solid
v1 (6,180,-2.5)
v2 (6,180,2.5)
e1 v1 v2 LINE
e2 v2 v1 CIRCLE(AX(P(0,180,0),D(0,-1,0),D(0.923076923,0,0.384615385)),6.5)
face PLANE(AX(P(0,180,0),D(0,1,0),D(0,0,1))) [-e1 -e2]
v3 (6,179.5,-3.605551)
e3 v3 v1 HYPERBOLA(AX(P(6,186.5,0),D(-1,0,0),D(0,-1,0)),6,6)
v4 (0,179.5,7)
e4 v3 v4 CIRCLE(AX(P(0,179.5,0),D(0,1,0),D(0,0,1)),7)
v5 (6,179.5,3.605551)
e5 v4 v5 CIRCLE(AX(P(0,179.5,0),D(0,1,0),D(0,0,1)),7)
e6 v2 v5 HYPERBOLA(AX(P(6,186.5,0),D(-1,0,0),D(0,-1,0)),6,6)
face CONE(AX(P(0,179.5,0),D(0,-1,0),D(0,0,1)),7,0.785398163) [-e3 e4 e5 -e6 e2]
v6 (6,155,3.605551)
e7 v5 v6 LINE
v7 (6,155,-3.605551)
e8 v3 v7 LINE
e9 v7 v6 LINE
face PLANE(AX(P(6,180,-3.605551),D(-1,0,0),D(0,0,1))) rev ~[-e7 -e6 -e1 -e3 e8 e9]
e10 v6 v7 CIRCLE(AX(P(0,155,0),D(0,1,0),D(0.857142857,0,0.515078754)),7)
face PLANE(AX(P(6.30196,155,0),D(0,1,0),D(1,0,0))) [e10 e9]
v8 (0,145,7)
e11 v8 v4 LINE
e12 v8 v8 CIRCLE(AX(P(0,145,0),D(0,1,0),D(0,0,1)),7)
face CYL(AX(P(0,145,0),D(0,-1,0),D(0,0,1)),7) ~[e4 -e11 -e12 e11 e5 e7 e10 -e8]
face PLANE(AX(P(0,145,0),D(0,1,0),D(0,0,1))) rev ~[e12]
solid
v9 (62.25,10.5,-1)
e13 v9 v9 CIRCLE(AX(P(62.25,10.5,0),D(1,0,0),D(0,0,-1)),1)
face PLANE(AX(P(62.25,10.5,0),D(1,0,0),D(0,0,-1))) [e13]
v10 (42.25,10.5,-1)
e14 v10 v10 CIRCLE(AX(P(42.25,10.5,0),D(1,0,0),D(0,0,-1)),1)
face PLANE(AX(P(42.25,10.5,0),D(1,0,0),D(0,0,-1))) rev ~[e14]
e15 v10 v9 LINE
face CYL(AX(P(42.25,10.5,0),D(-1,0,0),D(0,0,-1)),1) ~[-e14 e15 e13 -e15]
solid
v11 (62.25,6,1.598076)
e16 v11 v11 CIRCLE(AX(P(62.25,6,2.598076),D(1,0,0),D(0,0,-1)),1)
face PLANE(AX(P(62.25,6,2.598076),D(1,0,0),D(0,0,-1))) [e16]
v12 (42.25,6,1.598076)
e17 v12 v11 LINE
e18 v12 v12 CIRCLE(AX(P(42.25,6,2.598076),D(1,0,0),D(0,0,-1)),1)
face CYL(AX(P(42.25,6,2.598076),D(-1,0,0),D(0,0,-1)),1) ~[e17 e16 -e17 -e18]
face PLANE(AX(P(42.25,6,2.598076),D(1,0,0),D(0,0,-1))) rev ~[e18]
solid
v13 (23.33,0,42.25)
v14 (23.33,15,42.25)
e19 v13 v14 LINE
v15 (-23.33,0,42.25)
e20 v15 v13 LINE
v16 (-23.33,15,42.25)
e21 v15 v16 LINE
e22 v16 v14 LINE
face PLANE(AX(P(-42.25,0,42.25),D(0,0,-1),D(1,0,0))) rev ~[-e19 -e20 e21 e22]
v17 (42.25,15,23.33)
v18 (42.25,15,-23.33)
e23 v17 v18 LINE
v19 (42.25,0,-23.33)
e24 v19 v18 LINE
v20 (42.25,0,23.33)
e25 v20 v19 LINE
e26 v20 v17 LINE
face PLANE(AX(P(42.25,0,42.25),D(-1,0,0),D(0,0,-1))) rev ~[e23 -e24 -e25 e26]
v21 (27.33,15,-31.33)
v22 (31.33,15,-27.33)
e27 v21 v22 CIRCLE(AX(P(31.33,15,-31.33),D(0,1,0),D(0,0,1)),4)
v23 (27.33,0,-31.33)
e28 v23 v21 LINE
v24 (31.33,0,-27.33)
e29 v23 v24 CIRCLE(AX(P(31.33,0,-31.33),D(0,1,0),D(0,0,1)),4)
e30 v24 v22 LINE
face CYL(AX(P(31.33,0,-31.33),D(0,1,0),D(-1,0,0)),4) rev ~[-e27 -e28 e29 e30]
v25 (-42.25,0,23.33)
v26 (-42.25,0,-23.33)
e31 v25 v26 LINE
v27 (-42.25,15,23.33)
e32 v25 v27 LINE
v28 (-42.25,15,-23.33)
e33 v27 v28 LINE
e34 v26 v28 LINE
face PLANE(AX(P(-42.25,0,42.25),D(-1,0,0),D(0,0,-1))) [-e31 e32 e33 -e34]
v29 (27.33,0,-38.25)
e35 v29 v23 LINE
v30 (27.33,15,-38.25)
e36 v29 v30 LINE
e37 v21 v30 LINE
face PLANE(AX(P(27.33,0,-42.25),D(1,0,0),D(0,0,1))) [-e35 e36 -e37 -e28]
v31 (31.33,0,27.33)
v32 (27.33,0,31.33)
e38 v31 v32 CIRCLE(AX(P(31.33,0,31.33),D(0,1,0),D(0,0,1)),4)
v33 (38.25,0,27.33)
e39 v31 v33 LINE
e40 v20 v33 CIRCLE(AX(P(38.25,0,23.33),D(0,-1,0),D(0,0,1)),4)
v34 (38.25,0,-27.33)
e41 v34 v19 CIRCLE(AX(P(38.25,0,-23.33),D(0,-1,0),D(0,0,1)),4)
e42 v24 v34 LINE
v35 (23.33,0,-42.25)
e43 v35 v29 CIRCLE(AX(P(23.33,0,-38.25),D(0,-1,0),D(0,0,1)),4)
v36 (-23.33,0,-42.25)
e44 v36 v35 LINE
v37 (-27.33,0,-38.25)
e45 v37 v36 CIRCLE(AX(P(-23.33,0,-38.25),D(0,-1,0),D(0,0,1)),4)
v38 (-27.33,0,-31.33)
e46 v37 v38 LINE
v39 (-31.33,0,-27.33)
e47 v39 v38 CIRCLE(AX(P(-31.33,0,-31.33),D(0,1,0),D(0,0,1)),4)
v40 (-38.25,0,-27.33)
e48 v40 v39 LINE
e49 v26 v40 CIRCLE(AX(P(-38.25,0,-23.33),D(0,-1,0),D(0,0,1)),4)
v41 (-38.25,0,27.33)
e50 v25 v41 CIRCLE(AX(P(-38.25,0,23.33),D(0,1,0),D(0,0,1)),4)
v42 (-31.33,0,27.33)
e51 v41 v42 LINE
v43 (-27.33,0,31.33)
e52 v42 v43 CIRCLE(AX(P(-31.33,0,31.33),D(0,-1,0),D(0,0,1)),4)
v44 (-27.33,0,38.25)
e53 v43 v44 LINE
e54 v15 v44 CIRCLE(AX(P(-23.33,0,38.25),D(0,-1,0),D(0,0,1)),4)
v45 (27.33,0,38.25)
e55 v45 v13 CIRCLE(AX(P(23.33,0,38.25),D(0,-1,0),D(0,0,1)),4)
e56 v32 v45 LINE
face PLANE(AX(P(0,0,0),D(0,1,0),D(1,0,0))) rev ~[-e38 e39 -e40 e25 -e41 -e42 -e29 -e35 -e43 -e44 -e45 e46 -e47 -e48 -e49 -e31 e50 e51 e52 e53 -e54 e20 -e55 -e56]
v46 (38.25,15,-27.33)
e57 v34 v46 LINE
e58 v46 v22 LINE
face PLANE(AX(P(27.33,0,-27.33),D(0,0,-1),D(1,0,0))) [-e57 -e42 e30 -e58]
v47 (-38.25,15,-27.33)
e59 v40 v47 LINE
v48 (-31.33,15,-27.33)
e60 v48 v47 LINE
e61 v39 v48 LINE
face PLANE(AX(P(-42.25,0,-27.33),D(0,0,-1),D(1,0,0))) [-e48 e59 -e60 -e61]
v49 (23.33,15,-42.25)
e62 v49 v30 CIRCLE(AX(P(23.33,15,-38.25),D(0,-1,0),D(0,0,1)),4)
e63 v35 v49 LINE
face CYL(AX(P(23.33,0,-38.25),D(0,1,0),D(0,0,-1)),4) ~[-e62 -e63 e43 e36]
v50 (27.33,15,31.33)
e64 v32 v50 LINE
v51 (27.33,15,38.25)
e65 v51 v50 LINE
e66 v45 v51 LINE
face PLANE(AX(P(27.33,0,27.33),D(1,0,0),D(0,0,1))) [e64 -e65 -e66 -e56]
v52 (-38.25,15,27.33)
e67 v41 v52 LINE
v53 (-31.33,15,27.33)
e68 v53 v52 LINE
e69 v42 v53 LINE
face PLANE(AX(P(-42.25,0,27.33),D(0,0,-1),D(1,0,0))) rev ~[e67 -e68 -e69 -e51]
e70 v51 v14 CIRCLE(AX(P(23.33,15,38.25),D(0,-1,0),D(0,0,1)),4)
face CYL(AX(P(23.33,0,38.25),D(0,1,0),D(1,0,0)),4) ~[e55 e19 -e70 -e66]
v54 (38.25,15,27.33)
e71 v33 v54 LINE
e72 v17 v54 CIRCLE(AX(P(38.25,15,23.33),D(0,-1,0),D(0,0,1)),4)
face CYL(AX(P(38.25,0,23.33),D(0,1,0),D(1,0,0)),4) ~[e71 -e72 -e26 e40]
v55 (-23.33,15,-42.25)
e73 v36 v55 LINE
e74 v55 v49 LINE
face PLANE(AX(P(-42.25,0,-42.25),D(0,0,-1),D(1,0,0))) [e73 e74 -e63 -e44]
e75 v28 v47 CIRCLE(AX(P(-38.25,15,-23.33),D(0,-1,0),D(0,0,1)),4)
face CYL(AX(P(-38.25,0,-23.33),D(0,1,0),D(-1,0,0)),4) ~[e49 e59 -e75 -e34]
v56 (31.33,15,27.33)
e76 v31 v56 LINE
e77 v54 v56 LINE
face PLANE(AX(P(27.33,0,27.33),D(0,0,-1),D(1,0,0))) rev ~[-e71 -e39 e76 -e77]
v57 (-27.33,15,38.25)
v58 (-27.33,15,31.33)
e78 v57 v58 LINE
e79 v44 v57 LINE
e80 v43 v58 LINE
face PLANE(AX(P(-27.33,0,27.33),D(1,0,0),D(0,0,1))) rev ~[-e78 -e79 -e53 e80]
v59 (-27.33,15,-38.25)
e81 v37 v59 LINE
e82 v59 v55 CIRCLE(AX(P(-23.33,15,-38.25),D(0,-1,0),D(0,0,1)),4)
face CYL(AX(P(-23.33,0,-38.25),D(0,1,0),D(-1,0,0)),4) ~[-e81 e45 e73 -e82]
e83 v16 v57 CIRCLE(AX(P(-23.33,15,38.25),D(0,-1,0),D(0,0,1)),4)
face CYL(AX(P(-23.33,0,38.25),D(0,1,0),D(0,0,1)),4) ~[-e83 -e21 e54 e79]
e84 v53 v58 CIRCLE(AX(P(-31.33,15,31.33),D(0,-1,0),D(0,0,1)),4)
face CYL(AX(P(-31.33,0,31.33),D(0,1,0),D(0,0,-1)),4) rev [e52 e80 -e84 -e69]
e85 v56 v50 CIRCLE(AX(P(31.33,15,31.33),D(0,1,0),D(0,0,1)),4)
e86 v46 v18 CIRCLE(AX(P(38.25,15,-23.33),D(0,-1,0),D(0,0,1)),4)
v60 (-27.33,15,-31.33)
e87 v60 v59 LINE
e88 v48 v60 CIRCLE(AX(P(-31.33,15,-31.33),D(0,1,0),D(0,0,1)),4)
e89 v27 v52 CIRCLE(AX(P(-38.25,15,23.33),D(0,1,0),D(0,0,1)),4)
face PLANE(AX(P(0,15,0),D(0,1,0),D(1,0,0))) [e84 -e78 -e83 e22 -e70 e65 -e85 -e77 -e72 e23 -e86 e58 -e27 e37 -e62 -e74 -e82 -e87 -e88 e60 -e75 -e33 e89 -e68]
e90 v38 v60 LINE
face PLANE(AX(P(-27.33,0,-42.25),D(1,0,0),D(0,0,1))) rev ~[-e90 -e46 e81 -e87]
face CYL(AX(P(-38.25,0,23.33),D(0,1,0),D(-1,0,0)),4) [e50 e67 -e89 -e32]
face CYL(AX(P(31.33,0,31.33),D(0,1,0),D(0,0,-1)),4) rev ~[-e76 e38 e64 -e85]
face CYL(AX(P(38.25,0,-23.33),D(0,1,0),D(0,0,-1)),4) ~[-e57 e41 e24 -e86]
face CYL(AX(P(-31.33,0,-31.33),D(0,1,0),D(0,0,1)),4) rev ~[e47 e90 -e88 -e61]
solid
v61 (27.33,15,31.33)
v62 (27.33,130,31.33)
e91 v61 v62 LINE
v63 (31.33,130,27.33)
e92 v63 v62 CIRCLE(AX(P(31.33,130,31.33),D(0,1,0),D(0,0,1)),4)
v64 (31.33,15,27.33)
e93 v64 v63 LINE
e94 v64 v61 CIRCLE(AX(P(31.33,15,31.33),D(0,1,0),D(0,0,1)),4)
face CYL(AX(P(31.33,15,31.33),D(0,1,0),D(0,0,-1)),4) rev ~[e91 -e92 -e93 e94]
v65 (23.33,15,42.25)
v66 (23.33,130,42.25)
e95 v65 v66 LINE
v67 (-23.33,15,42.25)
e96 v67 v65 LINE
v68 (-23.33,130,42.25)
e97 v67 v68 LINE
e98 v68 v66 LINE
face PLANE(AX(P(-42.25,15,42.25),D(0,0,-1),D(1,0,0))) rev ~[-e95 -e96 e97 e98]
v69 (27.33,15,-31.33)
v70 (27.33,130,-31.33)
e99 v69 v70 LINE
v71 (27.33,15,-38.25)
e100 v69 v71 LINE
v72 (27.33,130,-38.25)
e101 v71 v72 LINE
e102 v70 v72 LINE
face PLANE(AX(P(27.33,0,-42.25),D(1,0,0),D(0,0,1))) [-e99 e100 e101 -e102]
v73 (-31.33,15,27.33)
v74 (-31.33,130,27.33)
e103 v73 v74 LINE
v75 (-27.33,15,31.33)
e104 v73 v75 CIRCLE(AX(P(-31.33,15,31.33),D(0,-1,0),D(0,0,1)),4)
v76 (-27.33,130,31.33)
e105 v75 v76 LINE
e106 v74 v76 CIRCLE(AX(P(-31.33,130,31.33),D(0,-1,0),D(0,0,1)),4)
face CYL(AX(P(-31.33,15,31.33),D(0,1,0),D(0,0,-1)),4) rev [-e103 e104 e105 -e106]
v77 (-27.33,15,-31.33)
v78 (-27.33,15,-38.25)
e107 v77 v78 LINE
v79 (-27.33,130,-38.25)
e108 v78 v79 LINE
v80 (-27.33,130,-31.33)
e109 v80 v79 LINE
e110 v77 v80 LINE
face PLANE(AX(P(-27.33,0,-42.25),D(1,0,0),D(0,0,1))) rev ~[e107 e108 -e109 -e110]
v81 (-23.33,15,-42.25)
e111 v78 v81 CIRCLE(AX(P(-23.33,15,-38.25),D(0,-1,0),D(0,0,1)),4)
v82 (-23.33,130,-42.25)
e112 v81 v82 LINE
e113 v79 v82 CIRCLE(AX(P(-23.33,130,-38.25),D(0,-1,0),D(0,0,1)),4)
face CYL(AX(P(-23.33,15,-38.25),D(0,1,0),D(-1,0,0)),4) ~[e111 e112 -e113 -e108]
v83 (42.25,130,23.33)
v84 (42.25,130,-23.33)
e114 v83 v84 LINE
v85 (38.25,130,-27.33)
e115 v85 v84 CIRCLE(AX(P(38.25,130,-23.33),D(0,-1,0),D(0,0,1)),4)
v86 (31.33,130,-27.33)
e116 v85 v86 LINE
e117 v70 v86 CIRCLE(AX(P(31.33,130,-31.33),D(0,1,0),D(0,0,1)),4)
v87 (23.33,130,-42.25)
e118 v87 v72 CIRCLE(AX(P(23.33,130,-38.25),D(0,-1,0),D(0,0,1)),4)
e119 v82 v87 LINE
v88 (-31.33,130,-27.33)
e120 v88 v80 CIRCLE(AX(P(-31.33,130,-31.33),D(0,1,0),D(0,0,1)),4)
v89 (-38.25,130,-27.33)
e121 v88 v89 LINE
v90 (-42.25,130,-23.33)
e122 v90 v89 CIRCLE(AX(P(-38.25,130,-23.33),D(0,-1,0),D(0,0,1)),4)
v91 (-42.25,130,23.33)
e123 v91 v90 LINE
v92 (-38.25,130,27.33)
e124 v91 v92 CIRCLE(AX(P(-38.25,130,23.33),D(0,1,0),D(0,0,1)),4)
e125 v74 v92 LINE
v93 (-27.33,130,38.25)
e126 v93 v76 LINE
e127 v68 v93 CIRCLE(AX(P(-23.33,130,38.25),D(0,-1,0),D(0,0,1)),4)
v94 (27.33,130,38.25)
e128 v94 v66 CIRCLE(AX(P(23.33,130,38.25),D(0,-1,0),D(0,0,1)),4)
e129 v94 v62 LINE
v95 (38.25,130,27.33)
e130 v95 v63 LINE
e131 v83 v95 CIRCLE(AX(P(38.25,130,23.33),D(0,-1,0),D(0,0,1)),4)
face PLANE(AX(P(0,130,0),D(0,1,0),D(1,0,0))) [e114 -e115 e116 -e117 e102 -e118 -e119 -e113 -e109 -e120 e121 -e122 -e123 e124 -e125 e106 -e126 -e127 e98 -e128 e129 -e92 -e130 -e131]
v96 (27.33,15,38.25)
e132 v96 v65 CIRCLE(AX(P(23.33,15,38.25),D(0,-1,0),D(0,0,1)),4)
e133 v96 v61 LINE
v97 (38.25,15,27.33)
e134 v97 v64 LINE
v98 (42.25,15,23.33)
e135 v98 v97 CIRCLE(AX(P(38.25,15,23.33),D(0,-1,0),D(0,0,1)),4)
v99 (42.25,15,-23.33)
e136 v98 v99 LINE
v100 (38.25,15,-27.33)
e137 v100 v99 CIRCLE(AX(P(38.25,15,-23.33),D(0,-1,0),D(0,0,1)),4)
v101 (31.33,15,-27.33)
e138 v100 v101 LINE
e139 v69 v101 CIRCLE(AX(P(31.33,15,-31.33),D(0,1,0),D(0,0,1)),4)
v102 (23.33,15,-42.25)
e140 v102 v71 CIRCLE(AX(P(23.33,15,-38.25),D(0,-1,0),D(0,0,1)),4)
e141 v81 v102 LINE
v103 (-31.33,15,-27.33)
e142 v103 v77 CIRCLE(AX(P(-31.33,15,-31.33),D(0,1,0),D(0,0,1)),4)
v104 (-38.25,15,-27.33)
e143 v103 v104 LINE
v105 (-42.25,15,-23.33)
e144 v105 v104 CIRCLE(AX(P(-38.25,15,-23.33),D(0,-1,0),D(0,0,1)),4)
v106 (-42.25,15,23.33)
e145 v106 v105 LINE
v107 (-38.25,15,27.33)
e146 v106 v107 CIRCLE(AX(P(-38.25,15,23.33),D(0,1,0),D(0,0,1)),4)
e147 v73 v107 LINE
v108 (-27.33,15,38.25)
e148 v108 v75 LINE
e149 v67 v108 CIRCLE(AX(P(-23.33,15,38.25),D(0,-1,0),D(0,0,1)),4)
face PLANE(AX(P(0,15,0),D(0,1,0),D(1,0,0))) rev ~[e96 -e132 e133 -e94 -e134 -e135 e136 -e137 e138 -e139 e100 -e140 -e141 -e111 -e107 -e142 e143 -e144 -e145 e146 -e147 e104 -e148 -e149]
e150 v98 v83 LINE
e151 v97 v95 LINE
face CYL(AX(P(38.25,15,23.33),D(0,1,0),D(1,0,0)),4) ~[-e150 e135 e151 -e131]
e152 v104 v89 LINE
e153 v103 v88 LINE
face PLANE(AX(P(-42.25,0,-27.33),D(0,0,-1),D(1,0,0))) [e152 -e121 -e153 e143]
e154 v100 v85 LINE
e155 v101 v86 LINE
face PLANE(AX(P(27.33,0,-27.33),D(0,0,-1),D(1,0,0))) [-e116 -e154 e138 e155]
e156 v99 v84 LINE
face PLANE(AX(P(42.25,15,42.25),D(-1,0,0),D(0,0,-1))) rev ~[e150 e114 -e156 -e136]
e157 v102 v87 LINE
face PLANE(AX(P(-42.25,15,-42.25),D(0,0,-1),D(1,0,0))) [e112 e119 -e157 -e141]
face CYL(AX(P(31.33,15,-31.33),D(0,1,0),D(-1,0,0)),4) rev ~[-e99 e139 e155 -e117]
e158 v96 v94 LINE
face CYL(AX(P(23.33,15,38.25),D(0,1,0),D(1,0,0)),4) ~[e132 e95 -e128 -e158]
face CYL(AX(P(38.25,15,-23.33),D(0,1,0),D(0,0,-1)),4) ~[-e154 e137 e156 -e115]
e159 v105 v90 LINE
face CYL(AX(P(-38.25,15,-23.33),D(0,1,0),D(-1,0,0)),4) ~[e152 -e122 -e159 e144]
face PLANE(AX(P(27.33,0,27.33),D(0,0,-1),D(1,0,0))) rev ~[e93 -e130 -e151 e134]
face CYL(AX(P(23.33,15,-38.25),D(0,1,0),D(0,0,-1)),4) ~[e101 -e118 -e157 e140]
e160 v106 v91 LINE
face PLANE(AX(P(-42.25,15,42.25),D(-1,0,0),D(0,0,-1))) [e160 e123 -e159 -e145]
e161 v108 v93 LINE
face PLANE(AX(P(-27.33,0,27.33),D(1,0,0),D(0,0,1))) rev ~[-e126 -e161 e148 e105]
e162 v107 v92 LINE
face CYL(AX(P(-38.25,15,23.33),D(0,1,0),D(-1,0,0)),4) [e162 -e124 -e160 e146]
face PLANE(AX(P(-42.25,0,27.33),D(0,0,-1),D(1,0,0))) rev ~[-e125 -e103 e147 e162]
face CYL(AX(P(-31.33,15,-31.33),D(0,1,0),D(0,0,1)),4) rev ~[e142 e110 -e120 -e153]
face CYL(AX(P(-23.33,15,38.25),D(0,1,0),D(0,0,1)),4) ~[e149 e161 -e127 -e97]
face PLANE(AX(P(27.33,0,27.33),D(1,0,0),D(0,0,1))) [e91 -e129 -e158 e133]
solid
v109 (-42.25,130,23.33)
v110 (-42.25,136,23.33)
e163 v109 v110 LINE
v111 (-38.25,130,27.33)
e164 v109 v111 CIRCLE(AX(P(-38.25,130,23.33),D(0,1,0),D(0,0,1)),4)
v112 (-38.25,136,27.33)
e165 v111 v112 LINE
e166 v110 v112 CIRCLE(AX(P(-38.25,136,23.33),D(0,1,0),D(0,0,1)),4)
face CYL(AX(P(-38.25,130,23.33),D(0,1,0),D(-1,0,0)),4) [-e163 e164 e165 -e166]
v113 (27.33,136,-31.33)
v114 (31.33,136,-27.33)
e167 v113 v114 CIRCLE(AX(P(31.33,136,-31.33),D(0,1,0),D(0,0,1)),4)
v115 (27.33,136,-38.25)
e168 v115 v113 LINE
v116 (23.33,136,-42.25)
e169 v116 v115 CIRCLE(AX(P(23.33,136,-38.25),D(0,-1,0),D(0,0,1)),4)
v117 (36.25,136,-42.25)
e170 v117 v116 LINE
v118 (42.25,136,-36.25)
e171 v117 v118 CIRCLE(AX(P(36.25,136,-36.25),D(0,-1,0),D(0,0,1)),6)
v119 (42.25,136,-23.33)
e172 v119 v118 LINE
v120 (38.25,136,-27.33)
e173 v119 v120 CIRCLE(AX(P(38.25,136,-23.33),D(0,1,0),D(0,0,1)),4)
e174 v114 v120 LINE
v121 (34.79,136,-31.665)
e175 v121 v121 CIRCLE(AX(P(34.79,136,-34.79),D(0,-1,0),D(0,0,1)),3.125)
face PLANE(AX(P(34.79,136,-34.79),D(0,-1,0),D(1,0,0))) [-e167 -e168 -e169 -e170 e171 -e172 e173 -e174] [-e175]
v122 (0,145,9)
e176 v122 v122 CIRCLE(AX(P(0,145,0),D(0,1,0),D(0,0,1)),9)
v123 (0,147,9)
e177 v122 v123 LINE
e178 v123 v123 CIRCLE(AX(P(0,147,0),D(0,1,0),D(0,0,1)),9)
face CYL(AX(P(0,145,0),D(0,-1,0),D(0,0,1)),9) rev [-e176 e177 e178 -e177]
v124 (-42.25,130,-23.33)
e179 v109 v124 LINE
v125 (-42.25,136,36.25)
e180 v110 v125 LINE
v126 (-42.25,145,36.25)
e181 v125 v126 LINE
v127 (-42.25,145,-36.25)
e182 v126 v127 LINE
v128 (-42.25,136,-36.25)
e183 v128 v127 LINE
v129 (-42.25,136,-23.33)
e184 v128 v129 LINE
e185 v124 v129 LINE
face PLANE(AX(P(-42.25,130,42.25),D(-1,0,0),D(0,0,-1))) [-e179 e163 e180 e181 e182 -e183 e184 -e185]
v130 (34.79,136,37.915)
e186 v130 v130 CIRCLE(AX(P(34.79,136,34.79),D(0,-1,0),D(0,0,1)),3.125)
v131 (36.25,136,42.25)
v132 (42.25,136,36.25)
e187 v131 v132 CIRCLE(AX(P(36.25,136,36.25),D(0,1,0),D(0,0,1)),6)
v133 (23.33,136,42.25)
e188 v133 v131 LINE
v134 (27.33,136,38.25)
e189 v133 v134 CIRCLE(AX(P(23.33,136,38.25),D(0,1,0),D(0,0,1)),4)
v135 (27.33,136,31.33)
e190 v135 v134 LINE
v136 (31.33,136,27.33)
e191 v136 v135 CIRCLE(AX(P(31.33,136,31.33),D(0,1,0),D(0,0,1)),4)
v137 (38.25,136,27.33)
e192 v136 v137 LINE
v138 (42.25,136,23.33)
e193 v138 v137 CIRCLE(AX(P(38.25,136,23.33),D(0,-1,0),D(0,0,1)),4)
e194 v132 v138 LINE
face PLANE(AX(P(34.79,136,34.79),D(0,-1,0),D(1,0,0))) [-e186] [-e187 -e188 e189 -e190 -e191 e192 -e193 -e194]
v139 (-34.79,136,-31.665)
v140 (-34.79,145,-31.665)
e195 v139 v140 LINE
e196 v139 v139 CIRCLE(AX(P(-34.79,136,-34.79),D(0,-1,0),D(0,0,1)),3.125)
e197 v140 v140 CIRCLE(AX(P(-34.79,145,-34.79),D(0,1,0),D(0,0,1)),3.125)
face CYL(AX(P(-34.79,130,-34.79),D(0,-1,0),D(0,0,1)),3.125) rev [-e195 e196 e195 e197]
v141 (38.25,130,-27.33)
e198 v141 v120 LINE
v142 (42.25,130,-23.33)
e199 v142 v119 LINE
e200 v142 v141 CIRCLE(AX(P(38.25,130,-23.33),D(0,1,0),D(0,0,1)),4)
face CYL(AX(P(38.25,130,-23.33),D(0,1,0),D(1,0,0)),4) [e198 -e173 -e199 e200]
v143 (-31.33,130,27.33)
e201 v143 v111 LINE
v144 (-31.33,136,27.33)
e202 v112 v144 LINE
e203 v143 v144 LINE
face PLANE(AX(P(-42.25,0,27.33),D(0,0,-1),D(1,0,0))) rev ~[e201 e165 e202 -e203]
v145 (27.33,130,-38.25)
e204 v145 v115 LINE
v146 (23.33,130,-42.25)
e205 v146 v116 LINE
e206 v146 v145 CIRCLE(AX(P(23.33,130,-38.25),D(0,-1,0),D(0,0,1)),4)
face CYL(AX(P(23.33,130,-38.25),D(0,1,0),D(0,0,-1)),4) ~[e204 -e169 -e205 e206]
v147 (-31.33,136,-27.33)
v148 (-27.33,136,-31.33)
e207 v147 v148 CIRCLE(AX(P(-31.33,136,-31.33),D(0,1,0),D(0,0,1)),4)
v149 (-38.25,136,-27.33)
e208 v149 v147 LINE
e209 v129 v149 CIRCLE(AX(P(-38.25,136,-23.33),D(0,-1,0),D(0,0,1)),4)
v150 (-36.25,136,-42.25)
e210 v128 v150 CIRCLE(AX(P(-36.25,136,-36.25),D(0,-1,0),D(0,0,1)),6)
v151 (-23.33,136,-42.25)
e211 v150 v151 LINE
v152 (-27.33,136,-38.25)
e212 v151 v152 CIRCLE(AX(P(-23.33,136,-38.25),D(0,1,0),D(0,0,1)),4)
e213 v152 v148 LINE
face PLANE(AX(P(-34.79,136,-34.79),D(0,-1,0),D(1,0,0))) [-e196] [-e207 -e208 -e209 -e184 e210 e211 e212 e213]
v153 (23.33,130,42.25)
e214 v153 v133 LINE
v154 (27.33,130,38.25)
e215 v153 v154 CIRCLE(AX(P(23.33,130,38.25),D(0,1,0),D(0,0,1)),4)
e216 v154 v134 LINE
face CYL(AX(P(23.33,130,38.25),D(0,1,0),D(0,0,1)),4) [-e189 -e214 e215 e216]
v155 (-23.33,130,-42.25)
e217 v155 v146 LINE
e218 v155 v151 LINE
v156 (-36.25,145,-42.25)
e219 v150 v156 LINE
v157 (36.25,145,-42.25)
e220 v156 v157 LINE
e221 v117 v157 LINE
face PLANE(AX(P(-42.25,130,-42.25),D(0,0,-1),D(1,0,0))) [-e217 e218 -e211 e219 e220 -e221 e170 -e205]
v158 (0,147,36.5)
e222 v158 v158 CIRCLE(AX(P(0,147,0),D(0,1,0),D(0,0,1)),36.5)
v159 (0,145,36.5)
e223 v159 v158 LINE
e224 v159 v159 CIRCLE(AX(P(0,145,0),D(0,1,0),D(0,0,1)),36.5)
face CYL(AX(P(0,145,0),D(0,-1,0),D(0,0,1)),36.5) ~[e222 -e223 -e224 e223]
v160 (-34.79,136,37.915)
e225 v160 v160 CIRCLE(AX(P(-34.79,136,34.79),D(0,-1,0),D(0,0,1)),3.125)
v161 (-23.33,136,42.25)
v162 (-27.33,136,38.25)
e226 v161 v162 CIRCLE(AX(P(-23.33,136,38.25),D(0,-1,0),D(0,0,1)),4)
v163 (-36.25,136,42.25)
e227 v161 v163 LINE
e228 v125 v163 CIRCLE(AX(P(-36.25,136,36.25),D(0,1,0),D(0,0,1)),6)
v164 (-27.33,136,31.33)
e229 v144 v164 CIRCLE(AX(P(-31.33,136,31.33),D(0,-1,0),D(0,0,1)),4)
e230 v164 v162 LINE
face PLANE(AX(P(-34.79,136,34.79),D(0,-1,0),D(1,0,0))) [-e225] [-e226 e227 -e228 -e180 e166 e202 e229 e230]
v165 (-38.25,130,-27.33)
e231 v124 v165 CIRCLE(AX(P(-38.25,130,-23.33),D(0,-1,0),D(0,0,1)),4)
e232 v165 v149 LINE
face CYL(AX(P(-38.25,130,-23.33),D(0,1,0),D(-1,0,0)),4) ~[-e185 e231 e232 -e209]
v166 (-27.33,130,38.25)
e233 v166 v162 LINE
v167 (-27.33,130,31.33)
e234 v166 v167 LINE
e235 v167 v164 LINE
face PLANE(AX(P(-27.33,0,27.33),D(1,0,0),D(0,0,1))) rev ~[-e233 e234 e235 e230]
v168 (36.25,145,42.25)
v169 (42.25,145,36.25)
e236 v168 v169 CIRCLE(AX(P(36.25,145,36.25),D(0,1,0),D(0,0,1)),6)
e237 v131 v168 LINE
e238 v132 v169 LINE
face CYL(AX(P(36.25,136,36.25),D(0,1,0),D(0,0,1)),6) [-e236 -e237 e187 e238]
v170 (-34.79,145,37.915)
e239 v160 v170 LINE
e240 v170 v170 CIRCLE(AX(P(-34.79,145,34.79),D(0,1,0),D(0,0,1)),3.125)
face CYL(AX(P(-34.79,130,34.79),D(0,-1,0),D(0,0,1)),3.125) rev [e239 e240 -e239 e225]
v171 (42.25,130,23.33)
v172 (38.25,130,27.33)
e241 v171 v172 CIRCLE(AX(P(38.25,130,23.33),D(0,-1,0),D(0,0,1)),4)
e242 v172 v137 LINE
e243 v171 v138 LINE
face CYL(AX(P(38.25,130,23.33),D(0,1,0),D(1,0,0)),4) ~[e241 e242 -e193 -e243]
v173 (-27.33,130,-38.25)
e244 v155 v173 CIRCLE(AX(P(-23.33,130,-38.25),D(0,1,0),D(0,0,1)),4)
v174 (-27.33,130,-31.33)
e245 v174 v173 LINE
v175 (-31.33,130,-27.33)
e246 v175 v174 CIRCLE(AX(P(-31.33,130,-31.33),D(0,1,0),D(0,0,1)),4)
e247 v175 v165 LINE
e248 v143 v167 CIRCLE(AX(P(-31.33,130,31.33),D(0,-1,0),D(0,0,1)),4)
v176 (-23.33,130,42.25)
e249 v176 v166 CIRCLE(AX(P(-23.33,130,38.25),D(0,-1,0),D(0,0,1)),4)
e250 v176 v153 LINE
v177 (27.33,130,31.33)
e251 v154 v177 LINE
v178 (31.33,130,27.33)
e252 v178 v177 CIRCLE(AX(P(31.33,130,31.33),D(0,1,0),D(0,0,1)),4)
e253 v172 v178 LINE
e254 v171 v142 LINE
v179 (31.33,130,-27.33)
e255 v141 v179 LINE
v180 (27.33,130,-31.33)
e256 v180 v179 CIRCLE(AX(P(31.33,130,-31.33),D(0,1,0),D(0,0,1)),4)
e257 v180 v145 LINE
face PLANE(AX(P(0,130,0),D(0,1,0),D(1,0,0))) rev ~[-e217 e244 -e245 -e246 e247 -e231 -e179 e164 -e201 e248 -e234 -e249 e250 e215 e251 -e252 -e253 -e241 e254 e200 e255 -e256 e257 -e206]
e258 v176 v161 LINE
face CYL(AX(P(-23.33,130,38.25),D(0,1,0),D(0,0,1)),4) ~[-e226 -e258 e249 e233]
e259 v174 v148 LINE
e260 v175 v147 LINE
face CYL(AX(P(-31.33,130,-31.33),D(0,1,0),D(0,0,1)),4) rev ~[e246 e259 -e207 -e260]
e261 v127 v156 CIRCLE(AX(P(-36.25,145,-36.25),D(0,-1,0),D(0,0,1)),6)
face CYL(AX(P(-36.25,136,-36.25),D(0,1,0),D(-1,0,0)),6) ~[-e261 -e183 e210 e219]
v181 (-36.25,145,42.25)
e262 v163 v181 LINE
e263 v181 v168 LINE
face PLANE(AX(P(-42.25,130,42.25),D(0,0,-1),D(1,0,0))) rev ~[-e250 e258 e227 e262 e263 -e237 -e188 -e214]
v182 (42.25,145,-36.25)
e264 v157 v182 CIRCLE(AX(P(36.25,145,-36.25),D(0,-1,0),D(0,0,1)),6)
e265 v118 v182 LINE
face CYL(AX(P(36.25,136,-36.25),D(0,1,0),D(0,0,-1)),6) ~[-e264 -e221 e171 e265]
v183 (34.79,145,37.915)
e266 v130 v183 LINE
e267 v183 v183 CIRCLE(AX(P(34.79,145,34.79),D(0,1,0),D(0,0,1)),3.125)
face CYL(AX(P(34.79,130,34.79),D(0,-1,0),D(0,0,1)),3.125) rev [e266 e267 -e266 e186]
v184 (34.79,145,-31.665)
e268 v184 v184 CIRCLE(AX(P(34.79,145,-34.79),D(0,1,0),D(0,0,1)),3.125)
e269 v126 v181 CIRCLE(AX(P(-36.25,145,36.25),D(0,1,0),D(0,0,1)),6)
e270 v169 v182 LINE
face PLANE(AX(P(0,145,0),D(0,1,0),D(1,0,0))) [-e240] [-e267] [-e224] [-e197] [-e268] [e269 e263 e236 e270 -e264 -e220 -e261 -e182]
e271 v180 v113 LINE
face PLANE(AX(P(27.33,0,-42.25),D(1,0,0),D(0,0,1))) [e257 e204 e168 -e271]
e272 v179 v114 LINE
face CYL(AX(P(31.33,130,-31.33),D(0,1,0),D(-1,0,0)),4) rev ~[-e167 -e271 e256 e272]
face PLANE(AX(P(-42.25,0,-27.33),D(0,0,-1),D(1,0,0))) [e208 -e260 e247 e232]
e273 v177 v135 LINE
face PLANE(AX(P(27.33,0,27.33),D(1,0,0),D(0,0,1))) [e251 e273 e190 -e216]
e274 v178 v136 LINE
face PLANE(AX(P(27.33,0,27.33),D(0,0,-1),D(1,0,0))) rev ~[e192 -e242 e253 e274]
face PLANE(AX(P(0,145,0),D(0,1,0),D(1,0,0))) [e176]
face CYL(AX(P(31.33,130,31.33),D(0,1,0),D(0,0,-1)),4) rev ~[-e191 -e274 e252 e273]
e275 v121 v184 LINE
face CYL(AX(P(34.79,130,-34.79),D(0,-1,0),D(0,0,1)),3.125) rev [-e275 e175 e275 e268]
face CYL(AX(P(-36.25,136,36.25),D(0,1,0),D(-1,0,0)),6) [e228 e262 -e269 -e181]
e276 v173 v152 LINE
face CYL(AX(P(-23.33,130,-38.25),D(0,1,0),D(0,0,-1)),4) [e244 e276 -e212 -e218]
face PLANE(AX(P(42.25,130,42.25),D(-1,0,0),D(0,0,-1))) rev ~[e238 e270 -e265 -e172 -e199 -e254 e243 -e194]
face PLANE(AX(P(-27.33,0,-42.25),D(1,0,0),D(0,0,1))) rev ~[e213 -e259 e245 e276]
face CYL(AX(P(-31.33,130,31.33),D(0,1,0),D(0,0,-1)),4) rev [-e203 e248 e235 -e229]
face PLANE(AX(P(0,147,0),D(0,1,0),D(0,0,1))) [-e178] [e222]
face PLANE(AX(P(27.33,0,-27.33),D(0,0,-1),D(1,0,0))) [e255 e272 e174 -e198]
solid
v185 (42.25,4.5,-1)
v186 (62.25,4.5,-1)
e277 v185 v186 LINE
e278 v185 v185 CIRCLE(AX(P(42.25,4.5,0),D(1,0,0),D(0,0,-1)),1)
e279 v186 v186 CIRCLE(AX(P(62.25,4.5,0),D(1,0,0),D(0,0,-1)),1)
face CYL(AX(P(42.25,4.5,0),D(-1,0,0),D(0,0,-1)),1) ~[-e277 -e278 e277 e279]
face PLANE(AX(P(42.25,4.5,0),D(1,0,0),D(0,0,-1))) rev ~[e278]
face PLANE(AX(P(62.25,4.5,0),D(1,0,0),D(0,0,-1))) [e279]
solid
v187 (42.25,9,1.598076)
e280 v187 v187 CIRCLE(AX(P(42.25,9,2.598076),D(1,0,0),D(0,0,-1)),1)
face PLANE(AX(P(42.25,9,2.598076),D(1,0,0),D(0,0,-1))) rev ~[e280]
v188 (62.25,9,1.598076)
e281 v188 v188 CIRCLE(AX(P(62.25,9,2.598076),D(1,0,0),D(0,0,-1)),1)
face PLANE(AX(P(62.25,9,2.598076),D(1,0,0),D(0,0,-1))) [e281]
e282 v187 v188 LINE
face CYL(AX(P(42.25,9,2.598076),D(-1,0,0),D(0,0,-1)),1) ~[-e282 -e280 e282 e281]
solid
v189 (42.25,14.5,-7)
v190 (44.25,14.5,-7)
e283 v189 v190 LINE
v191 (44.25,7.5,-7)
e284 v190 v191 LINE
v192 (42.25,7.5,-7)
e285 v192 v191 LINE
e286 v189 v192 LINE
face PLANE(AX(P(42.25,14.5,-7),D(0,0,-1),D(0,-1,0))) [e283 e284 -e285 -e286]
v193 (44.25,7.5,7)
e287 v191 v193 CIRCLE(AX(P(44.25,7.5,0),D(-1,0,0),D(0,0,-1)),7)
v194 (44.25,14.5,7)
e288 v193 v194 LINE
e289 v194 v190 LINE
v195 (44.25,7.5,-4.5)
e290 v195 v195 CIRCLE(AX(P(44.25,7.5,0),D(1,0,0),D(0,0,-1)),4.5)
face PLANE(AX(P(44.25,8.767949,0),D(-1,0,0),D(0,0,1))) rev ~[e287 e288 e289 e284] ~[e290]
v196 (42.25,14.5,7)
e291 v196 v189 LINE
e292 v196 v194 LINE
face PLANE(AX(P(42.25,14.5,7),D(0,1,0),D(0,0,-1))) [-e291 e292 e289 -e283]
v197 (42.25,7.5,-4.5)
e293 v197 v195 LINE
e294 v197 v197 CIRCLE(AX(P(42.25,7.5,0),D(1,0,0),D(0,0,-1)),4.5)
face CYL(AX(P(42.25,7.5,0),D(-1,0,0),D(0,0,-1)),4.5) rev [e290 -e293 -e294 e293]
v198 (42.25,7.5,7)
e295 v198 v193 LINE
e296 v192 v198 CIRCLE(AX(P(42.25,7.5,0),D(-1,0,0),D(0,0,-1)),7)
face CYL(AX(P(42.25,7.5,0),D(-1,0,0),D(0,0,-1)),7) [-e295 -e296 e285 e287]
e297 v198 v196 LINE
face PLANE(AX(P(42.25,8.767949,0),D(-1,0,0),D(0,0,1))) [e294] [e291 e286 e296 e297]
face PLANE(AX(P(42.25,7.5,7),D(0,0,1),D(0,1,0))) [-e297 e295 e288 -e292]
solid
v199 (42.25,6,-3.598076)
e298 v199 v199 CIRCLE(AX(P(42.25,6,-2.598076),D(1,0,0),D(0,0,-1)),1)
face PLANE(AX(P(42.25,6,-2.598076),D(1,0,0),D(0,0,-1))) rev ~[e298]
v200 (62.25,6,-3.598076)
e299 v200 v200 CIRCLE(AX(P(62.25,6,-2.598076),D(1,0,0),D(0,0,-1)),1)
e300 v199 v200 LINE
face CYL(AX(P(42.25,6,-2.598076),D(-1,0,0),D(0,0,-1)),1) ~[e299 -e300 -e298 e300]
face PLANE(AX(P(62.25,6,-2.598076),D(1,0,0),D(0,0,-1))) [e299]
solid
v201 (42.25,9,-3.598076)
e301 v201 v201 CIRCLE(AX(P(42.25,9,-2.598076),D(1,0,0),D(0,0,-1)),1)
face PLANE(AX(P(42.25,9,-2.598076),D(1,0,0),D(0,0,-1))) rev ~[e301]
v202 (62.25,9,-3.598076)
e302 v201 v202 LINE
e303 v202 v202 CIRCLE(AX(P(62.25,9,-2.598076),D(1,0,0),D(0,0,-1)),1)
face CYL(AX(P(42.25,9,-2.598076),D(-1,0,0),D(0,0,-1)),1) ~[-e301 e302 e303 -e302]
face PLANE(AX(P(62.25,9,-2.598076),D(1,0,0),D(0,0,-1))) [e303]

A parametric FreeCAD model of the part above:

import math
import FreeCAD as App
import Part
import Sketcher
from FreeCAD import Vector


def edges_at(feature, points):
    """Names of the edges that pass closest to the given points."""
    edges = feature.Shape.Edges
    near = lambda p: min(range(len(edges)), key=lambda i: edges[i].distToShape(Part.Vertex(*p))[0])
    return sorted({f"Edge{near(p) + 1}" for p in points})

doc = App.newDocument("Part")
body = doc.addObject("PartDesign::Body", "Body")

sketch1 = body.newObject("Sketcher::SketchObject", "Sketch")
sketch1.AttachmentSupport = (doc.getObject("XZ_Plane"), [""])
sketch1.MapMode = "FlatFace"
sketch1.addGeometry([
    Part.LineSegment(Vector(-42.2, -42.2, 0), Vector(-42.2, 42.2, 0)),
    Part.LineSegment(Vector(-42.2, 42.2, 0), Vector(42.2, 42.2, 0)),
    Part.LineSegment(Vector(42.2, 42.2, 0), Vector(42.2, -42.2, 0)),
    Part.LineSegment(Vector(42.2, -42.2, 0), Vector(-42.2, -42.2, 0)),
    Part.Circle(Vector(-34.8, 34.8, 0), Vector(0, 0, 1), 3.1),
    Part.Circle(Vector(34.8, 34.8, 0), Vector(0, 0, 1), 3.1),
    Part.Circle(Vector(-34.8, -34.8, 0), Vector(0, 0, 1), 3.1),
    Part.Circle(Vector(34.8, -34.8, 0), Vector(0, 0, 1), 3.1),
], False)
sketch1.addConstraint([
    Sketcher.Constraint("Coincident", 0, 2, 1, 1),
    Sketcher.Constraint("Coincident", 1, 2, 2, 1),
    Sketcher.Constraint("Coincident", 2, 2, 3, 1),
    Sketcher.Constraint("Coincident", 3, 2, 0, 1),
    Sketcher.Constraint("Vertical", 0),
    Sketcher.Constraint("Horizontal", 1),
    Sketcher.Constraint("Vertical", 2),
    Sketcher.Constraint("Horizontal", 3),
    Sketcher.Constraint("Equal", 4, 5),
    Sketcher.Constraint("Equal", 5, 6),
    Sketcher.Constraint("Equal", 6, 7),
    Sketcher.Constraint("Symmetric", 5, 3, 6, 3, -1, 1),
    Sketcher.Constraint("Symmetric", 4, 3, 7, 3, -1, 1),
    Sketcher.Constraint("Symmetric", 0, 2, 2, 2, -1, 1),
    Sketcher.Constraint("Symmetric", 4, 3, 5, 3, -2),
    Sketcher.Constraint("Equal", 3, 0),
    Sketcher.Constraint("Diameter", 4, 6.25),
    Sketcher.Constraint("DistanceX", 1, 1, 1, 2, 84.5),
    Sketcher.Constraint("DistanceX", 4, 3, -1, 1, 34.79),
    Sketcher.Constraint("DistanceY", -1, 1, 4, 3, 34.79),
])
pad1 = body.newObject("PartDesign::Pad", "Pad")
pad1.Profile = sketch1
pad1.Length = 15
pad1.Reversed = True
body2 = doc.addObject("PartDesign::Body", "Body001")

sketch2 = body2.newObject("Sketcher::SketchObject", "Sketch001")
sketch2.AttachmentSupport = (doc.getObject("XZ_Plane001"), [""])
sketch2.MapMode = "FlatFace"
sketch2.AttachmentOffset = App.Placement(Vector(0, 0, -15), App.Rotation())
sketch2.addGeometry([
    Part.LineSegment(Vector(-42.2, -42.2, 0), Vector(-42.2, 42.2, 0)),
    Part.LineSegment(Vector(-42.2, 42.2, 0), Vector(42.2, 42.2, 0)),
    Part.LineSegment(Vector(42.2, 42.2, 0), Vector(42.2, -42.2, 0)),
    Part.LineSegment(Vector(42.2, -42.2, 0), Vector(-42.2, -42.2, 0)),
    Part.Circle(Vector(-34.8, 34.8, 0), Vector(0, 0, 1), 3.1),
    Part.Circle(Vector(34.8, 34.8, 0), Vector(0, 0, 1), 3.1),
    Part.Circle(Vector(-34.8, -34.8, 0), Vector(0, 0, 1), 3.1),
    Part.Circle(Vector(34.8, -34.8, 0), Vector(0, 0, 1), 3.1),
], False)
sketch2.addConstraint([
    Sketcher.Constraint("Coincident", 0, 2, 1, 1),
    Sketcher.Constraint("Coincident", 1, 2, 2, 1),
    Sketcher.Constraint("Coincident", 2, 2, 3, 1),
    Sketcher.Constraint("Coincident", 3, 2, 0, 1),
    Sketcher.Constraint("Vertical", 0),
    Sketcher.Constraint("Horizontal", 1),
    Sketcher.Constraint("Vertical", 2),
    Sketcher.Constraint("Horizontal", 3),
    Sketcher.Constraint("Equal", 4, 5),
    Sketcher.Constraint("Equal", 5, 6),
    Sketcher.Constraint("Equal", 6, 7),
    Sketcher.Constraint("Symmetric", 5, 3, 6, 3, -1, 1),
    Sketcher.Constraint("Symmetric", 4, 3, 7, 3, -1, 1),
    Sketcher.Constraint("Symmetric", 0, 2, 2, 2, -1, 1),
    Sketcher.Constraint("Symmetric", 4, 3, 5, 3, -2),
    Sketcher.Constraint("Equal", 3, 0),
    Sketcher.Constraint("Diameter", 4, 6.25),
    Sketcher.Constraint("DistanceX", 1, 1, 1, 2, 84.5),
    Sketcher.Constraint("DistanceX", 4, 3, -1, 1, 34.79),
    Sketcher.Constraint("DistanceY", -1, 1, 4, 3, 34.79),
])
pad2 = body2.newObject("PartDesign::Pad", "Pad001")
pad2.Profile = sketch2
pad2.Length = 115
pad2.Reversed = True
body3 = doc.addObject("PartDesign::Body", "Body002")

sketch3 = body3.newObject("Sketcher::SketchObject", "Sketch002")
sketch3.AttachmentSupport = (doc.getObject("XZ_Plane002"), [""])
sketch3.MapMode = "FlatFace"
sketch3.AttachmentOffset = App.Placement(Vector(0, 0, -130), App.Rotation())
sketch3.addGeometry([
    Part.LineSegment(Vector(-42.2, -42.2, 0), Vector(-42.2, 42.2, 0)),
    Part.LineSegment(Vector(-42.2, 42.2, 0), Vector(42.2, 42.2, 0)),
    Part.LineSegment(Vector(42.2, 42.2, 0), Vector(42.2, -42.2, 0)),
    Part.LineSegment(Vector(42.2, -42.2, 0), Vector(-42.2, -42.2, 0)),
    Part.Circle(Vector(-34.8, 34.8, 0), Vector(0, 0, 1), 3.1),
    Part.Circle(Vector(34.8, 34.8, 0), Vector(0, 0, 1), 3.1),
    Part.Circle(Vector(-34.8, -34.8, 0), Vector(0, 0, 1), 3.1),
    Part.Circle(Vector(34.8, -34.8, 0), Vector(0, 0, 1), 3.1),
], False)
sketch3.addConstraint([
    Sketcher.Constraint("Coincident", 0, 2, 1, 1),
    Sketcher.Constraint("Coincident", 1, 2, 2, 1),
    Sketcher.Constraint("Coincident", 2, 2, 3, 1),
    Sketcher.Constraint("Coincident", 3, 2, 0, 1),
    Sketcher.Constraint("Vertical", 0),
    Sketcher.Constraint("Horizontal", 1),
    Sketcher.Constraint("Vertical", 2),
    Sketcher.Constraint("Horizontal", 3),
    Sketcher.Constraint("Equal", 4, 5),
    Sketcher.Constraint("Equal", 5, 6),
    Sketcher.Constraint("Equal", 6, 7),
    Sketcher.Constraint("Symmetric", 5, 3, 6, 3, -1, 1),
    Sketcher.Constraint("Symmetric", 4, 3, 7, 3, -1, 1),
    Sketcher.Constraint("Symmetric", 0, 2, 2, 2, -1, 1),
    Sketcher.Constraint("Symmetric", 4, 3, 5, 3, -2),
    Sketcher.Constraint("Equal", 3, 0),
    Sketcher.Constraint("Diameter", 4, 6.25),
    Sketcher.Constraint("DistanceX", 1, 1, 1, 2, 84.5),
    Sketcher.Constraint("DistanceX", 4, 3, -1, 1, 34.79),
    Sketcher.Constraint("DistanceY", -1, 1, 4, 3, 34.79),
])
pad3 = body3.newObject("PartDesign::Pad", "Pad002")
pad3.Profile = sketch3
pad3.Length = 15
pad3.Reversed = True

sketch4 = body3.newObject("Sketcher::SketchObject", "Sketch003")
sketch4.AttachmentSupport = (doc.getObject("XZ_Plane002"), [""])
sketch4.MapMode = "FlatFace"
sketch4.AttachmentOffset = App.Placement(Vector(0, 0, -145), App.Rotation())
sketch4.addGeometry([
    Part.Circle(Vector(0, 0, 0), Vector(0, 0, 1), 36),
    Part.Circle(Vector(0, 0, 0), Vector(0, 0, 1), 9),
], False)
sketch4.addConstraint([
    Sketcher.Constraint("Coincident", 0, 3, -1, 1),
    Sketcher.Constraint("Coincident", 1, 3, -1, 1),
    Sketcher.Constraint("Diameter", 0, 73.0),
    Sketcher.Constraint("Diameter", 1, 18.0),
])
pad4 = body3.newObject("PartDesign::Pad", "Pad003")
pad4.Profile = sketch4
pad4.Length = 2
pad4.Reversed = True
body4 = doc.addObject("PartDesign::Body", "Body003")

sketch5 = body4.newObject("Sketcher::SketchObject", "Sketch004")
sketch5.AttachmentSupport = (doc.getObject("YZ_Plane003"), [""])
sketch5.MapMode = "FlatFace"
sketch5.AttachmentOffset = App.Placement(Vector(0, 0, 42.25), App.Rotation())
sketch5.addGeometry([
    Part.LineSegment(Vector(14.5, 7, 0), Vector(7.5, 7, 0)),
    Part.ArcOfCircle(Part.Circle(Vector(7.5, 0, 0), Vector(0, 0, 1), 7), math.radians(90), math.radians(270)),
    Part.LineSegment(Vector(7.5, -7, 0), Vector(14.5, -7, 0)),
    Part.LineSegment(Vector(14.5, -7, 0), Vector(14.5, 7, 0)),
    Part.Circle(Vector(7.5, 0, 0), Vector(0, 0, 1), 4.5),
], False)
sketch5.addConstraint([
    Sketcher.Constraint("Tangent", 0, 2, 1, 1),
    Sketcher.Constraint("Tangent", 1, 2, 2, 1),
    Sketcher.Constraint("Coincident", 2, 2, 3, 1),
    Sketcher.Constraint("Coincident", 3, 2, 0, 1),
    Sketcher.Constraint("Horizontal", 0),
    Sketcher.Constraint("Horizontal", 2),
    Sketcher.Constraint("Vertical", 3),
    Sketcher.Constraint("Coincident", 4, 3, 1, 3),
    Sketcher.Constraint("PointOnObject", 1, 3, -1),
    Sketcher.Constraint("Diameter", 4, 9.0),
    Sketcher.Constraint("Radius", 1, 7.0),
    Sketcher.Constraint("DistanceX", 0, 2, 0, 1, 7.0),
    Sketcher.Constraint("DistanceX", -1, 1, 1, 3, 7.5),
])
pad5 = body4.newObject("PartDesign::Pad", "Pad004")
pad5.Profile = sketch5
pad5.Length = 2
body5 = doc.addObject("PartDesign::Body", "Body004")

sketch6 = body5.newObject("Sketcher::SketchObject", "Sketch005")
sketch6.AttachmentSupport = (doc.getObject("YZ_Plane004"), [""])
sketch6.MapMode = "FlatFace"
sketch6.AttachmentOffset = App.Placement(Vector(0, 0, 42.25), App.Rotation())
sketch6.addGeometry(Part.Circle(Vector(6, 2.6, 0), Vector(0, 0, 1), 1), False)
sketch6.addConstraint([
    Sketcher.Constraint("Diameter", 0, 2.0),
    Sketcher.Constraint("DistanceX", -1, 1, 0, 3, 6.0),
    Sketcher.Constraint("DistanceY", -1, 1, 0, 3, 2.598076),
])
pad6 = body5.newObject("PartDesign::Pad", "Pad005")
pad6.Profile = sketch6
pad6.Length = 20
body6 = doc.addObject("PartDesign::Body", "Body005")

sketch7 = body6.newObject("Sketcher::SketchObject", "Sketch006")
sketch7.AttachmentSupport = (doc.getObject("YZ_Plane005"), [""])
sketch7.MapMode = "FlatFace"
sketch7.AttachmentOffset = App.Placement(Vector(0, 0, 42.25), App.Rotation())
sketch7.addGeometry(Part.Circle(Vector(4.5, 0, 0), Vector(0, 0, 1), 1), False)
sketch7.addConstraint([
    Sketcher.Constraint("PointOnObject", 0, 3, -1),
    Sketcher.Constraint("Diameter", 0, 2.0),
    Sketcher.Constraint("DistanceX", -1, 1, 0, 3, 4.5),
])
pad7 = body6.newObject("PartDesign::Pad", "Pad006")
pad7.Profile = sketch7
pad7.Length = 20
body7 = doc.addObject("PartDesign::Body", "Body006")

sketch8 = body7.newObject("Sketcher::SketchObject", "Sketch007")
sketch8.AttachmentSupport = (doc.getObject("YZ_Plane006"), [""])
sketch8.MapMode = "FlatFace"
sketch8.AttachmentOffset = App.Placement(Vector(0, 0, 42.25), App.Rotation())
sketch8.addGeometry(Part.Circle(Vector(9, 2.6, 0), Vector(0, 0, 1), 1), False)
sketch8.addConstraint([
    Sketcher.Constraint("Diameter", 0, 2.0),
    Sketcher.Constraint("DistanceX", -1, 1, 0, 3, 9.0),
    Sketcher.Constraint("DistanceY", -1, 1, 0, 3, 2.598076),
])
pad8 = body7.newObject("PartDesign::Pad", "Pad007")
pad8.Profile = sketch8
pad8.Length = 20
body8 = doc.addObject("PartDesign::Body", "Body007")

sketch9 = body8.newObject("Sketcher::SketchObject", "Sketch008")
sketch9.AttachmentSupport = (doc.getObject("YZ_Plane007"), [""])
sketch9.MapMode = "FlatFace"
sketch9.AttachmentOffset = App.Placement(Vector(0, 0, 42.25), App.Rotation())
sketch9.addGeometry(Part.Circle(Vector(10.5, 0, 0), Vector(0, 0, 1), 1), False)
sketch9.addConstraint([
    Sketcher.Constraint("PointOnObject", 0, 3, -1),
    Sketcher.Constraint("Diameter", 0, 2.0),
    Sketcher.Constraint("DistanceX", -1, 1, 0, 3, 10.5),
])
pad9 = body8.newObject("PartDesign::Pad", "Pad008")
pad9.Profile = sketch9
pad9.Length = 20
body9 = doc.addObject("PartDesign::Body", "Body008")

sketch10 = body9.newObject("Sketcher::SketchObject", "Sketch009")
sketch10.AttachmentSupport = (doc.getObject("YZ_Plane008"), [""])
sketch10.MapMode = "FlatFace"
sketch10.AttachmentOffset = App.Placement(Vector(0, 0, 42.25), App.Rotation())
sketch10.addGeometry(Part.Circle(Vector(9, -2.6, 0), Vector(0, 0, 1), 1), False)
sketch10.addConstraint([
    Sketcher.Constraint("Diameter", 0, 2.0),
    Sketcher.Constraint("DistanceX", -1, 1, 0, 3, 9.0),
    Sketcher.Constraint("DistanceY", 0, 3, -1, 1, 2.598076),
])
pad10 = body9.newObject("PartDesign::Pad", "Pad009")
pad10.Profile = sketch10
pad10.Length = 20
body10 = doc.addObject("PartDesign::Body", "Body009")

sketch11 = body10.newObject("Sketcher::SketchObject", "Sketch010")
sketch11.AttachmentSupport = (doc.getObject("YZ_Plane009"), [""])
sketch11.MapMode = "FlatFace"
sketch11.AttachmentOffset = App.Placement(Vector(0, 0, 42.25), App.Rotation())
sketch11.addGeometry(Part.Circle(Vector(6, -2.6, 0), Vector(0, 0, 1), 1), False)
sketch11.addConstraint([
    Sketcher.Constraint("Diameter", 0, 2.0),
    Sketcher.Constraint("DistanceX", -1, 1, 0, 3, 6.0),
    Sketcher.Constraint("DistanceY", 0, 3, -1, 1, 2.598076),
])
pad11 = body10.newObject("PartDesign::Pad", "Pad010")
pad11.Profile = sketch11
pad11.Length = 20
body11 = doc.addObject("PartDesign::Body", "Body010")

sketch12 = body11.newObject("Sketcher::SketchObject", "Sketch011")
sketch12.AttachmentSupport = (doc.getObject("XZ_Plane010"), [""])
sketch12.MapMode = "FlatFace"
sketch12.AttachmentOffset = App.Placement(Vector(0, 0, -145), App.Rotation())
sketch12.addGeometry(Part.Circle(Vector(0, 0, 0), Vector(0, 0, 1), 7), False)
sketch12.addConstraint([
    Sketcher.Constraint("Coincident", 0, 3, -1, 1),
    Sketcher.Constraint("Diameter", 0, 14.0),
])
pad12 = body11.newObject("PartDesign::Pad", "Pad011")
pad12.Profile = sketch12
pad12.Length = 35
pad12.Reversed = True
doc.recompute()

chamfer = body11.newObject("PartDesign::Chamfer", "Chamfer")
chamfer.Base = (pad12, edges_at(pad12, [(0, 180, -7)]))
chamfer.Size = 0.5

sketch13 = body11.newObject("Sketcher::SketchObject", "Sketch012")
sketch13.AttachmentSupport = (doc.getObject("XZ_Plane010"), [""])
sketch13.MapMode = "FlatFace"
sketch13.AttachmentOffset = App.Placement(Vector(0, 0, -180), App.Rotation())
sketch13.addGeometry([
    Part.LineSegment(Vector(6, -4, 0), Vector(6, 4, 0)),
    Part.ArcOfCircle(Part.Circle(Vector(0, 0, 0), Vector(0, 0, 1), 7), math.radians(-31), math.radians(31)),
], False)
sketch13.addConstraint([
    Sketcher.Constraint("Coincident", 0, 1, 1, 1),
    Sketcher.Constraint("Coincident", 1, 2, 0, 2),
    Sketcher.Constraint("Vertical", 0),
    Sketcher.Constraint("Coincident", 1, 3, -1, 1),
    Sketcher.Constraint("Radius", 1, 7.0),
    Sketcher.Constraint("DistanceX", -1, 1, 0, 1, 6.0),
])
pocket1 = body11.newObject("PartDesign::Pocket", "Pocket")
pocket1.Profile = sketch13
pocket1.Length = 25
pocket1.Reversed = True
body12 = doc.addObject("PartDesign::Body", "Body011")
body12.AllowCompound = True

sketch14 = body12.newObject("Sketcher::SketchObject", "Sketch013")
sketch14.AttachmentSupport = (doc.getObject("XZ_Plane011"), [""])
sketch14.MapMode = "FlatFace"
sketch14.addGeometry([
    Part.LineSegment(Vector(27, 42, 0), Vector(27, 27, 0)),
    Part.LineSegment(Vector(27, 27, 0), Vector(42, 27, 0)),
    Part.LineSegment(Vector(42, 27, 0), Vector(42, 42, 0)),
    Part.LineSegment(Vector(42, 42, 0), Vector(27, 42, 0)),
    Part.LineSegment(Vector(-42, 42, 0), Vector(-42, 27, 0)),
    Part.LineSegment(Vector(-42, 27, 0), Vector(-27, 27, 0)),
    Part.LineSegment(Vector(-27, 27, 0), Vector(-27, 42, 0)),
    Part.LineSegment(Vector(-27, 42, 0), Vector(-42, 42, 0)),
    Part.LineSegment(Vector(27, -27, 0), Vector(27, -42, 0)),
    Part.LineSegment(Vector(27, -42, 0), Vector(42, -42, 0)),
    Part.LineSegment(Vector(42, -42, 0), Vector(42, -27, 0)),
    Part.LineSegment(Vector(42, -27, 0), Vector(27, -27, 0)),
    Part.LineSegment(Vector(-42, -27, 0), Vector(-42, -42, 0)),
    Part.LineSegment(Vector(-42, -42, 0), Vector(-27, -42, 0)),
    Part.LineSegment(Vector(-27, -42, 0), Vector(-27, -27, 0)),
    Part.LineSegment(Vector(-27, -27, 0), Vector(-42, -27, 0)),
], False)
sketch14.addConstraint([
    Sketcher.Constraint("Coincident", 0, 2, 1, 1),
    Sketcher.Constraint("Coincident", 1, 2, 2, 1),
    Sketcher.Constraint("Coincident", 2, 2, 3, 1),
    Sketcher.Constraint("Coincident", 3, 2, 0, 1),
    Sketcher.Constraint("Coincident", 4, 2, 5, 1),
    Sketcher.Constraint("Coincident", 5, 2, 6, 1),
    Sketcher.Constraint("Coincident", 6, 2, 7, 1),
    Sketcher.Constraint("Coincident", 7, 2, 4, 1),
    Sketcher.Constraint("Coincident", 8, 2, 9, 1),
    Sketcher.Constraint("Coincident", 9, 2, 10, 1),
    Sketcher.Constraint("Coincident", 10, 2, 11, 1),
    Sketcher.Constraint("Coincident", 11, 2, 8, 1),
    Sketcher.Constraint("Coincident", 12, 2, 13, 1),
    Sketcher.Constraint("Coincident", 13, 2, 14, 1),
    Sketcher.Constraint("Coincident", 14, 2, 15, 1),
    Sketcher.Constraint("Coincident", 15, 2, 12, 1),
    Sketcher.Constraint("Vertical", 0),
    Sketcher.Constraint("Horizontal", 1),
    Sketcher.Constraint("Vertical", 2),
    Sketcher.Constraint("Horizontal", 3),
    Sketcher.Constraint("Vertical", 4),
    Sketcher.Constraint("Horizontal", 5),
    Sketcher.Constraint("Vertical", 6),
    Sketcher.Constraint("Horizontal", 7),
    Sketcher.Constraint("Vertical", 8),
    Sketcher.Constraint("Horizontal", 9),
    Sketcher.Constraint("Vertical", 10),
    Sketcher.Constraint("Horizontal", 11),
    Sketcher.Constraint("Vertical", 12),
    Sketcher.Constraint("Horizontal", 13),
    Sketcher.Constraint("Vertical", 14),
    Sketcher.Constraint("Horizontal", 15),
    Sketcher.Constraint("Symmetric", 6, 2, 8, 2, -1, 1),
    Sketcher.Constraint("Symmetric", 4, 2, 10, 2, -1, 1),
    Sketcher.Constraint("Symmetric", 2, 2, 12, 2, -1, 1),
    Sketcher.Constraint("Symmetric", 0, 2, 14, 2, -1, 1),
    Sketcher.Constraint("Symmetric", 1, 2, 4, 2, -2),
    Sketcher.Constraint("Symmetric", 3, 2, 6, 2, -2),
    Sketcher.Constraint("Equal", 15, 0),
    Sketcher.Constraint("DistanceX", 1, 1, 1, 2, 14.92),
    Sketcher.Constraint("DistanceX", 4, 2, 1, 2, 84.5),
    Sketcher.Constraint("DistanceY", 8, 2, 3, 2, 84.5),
])
pad13 = body12.newObject("PartDesign::Pad", "Pad012")
pad13.Profile = sketch14
pad13.Length = 136
pad13.Reversed = True
doc.recompute()

body13 = doc.addObject("PartDesign::Body", "Body012")
body13.BaseFeature = body12
boolean = body.newObject("PartDesign::Boolean", "Boolean")
boolean.Type = "Cut"
boolean.addObjects([body13])
doc.recompute()

fillet = body.newObject("PartDesign::Fillet", "Fillet")
fillet.Base = (boolean, edges_at(boolean, [
    (-27.33, 7.5, -42.25),
    (27.33, 7.5, -42.25),
    (42.25, 7.5, 27.33),
    (-27.33, 7.5, 42.25),
    (27.33, 7.5, 27.33),
    (27.33, 7.5, 42.25),
    (-27.33, 7.5, 27.33),
    (-42.25, 7.5, 27.33),
    (27.33, 7.5, -27.33),
    (42.25, 7.5, -27.33),
    (-27.33, 7.5, -27.33),
    (-42.25, 7.5, -27.33),
]))
fillet.Radius = 4
doc.recompute()

body14 = doc.addObject("PartDesign::Body", "Body013")
body14.BaseFeature = body12
boolean2 = body2.newObject("PartDesign::Boolean", "Boolean001")
boolean2.Type = "Cut"
boolean2.addObjects([body14])
doc.recompute()

fillet2 = body2.newObject("PartDesign::Fillet", "Fillet001")
fillet2.Base = (boolean2, edges_at(boolean2, [
    (-27.33, 72.5, -42.25),
    (27.33, 72.5, -42.25),
    (42.25, 72.5, 27.33),
    (-27.33, 72.5, 42.25),
    (27.33, 72.5, 27.33),
    (27.33, 72.5, 42.25),
    (-27.33, 72.5, 27.33),
    (-42.25, 72.5, 27.33),
    (27.33, 72.5, -27.33),
    (42.25, 72.5, -27.33),
    (-42.25, 72.5, -27.33),
    (-27.33, 72.5, -27.33),
]))
fillet2.Radius = 4
doc.recompute()

boolean3 = body3.newObject("PartDesign::Boolean", "Boolean002")
boolean3.Type = "Cut"
boolean3.addObjects([body12])
doc.recompute()

fillet3 = body3.newObject("PartDesign::Fillet", "Fillet002")
fillet3.Base = (boolean3, edges_at(boolean3, [
    (-42.25, 140.5, -42.25),
    (42.25, 140.5, -42.25),
    (42.25, 140.5, 42.25),
    (-42.25, 140.5, 42.25),
]))
fillet3.Radius = 6
doc.recompute()

fillet4 = body3.newObject("PartDesign::Fillet", "Fillet003")
fillet4.Base = (fillet3, edges_at(fillet3, [
    (27.33, 133, 27.33),
    (42.25, 133, 27.33),
    (27.33, 133, 42.25),
    (-27.33, 133, 27.33),
    (-27.33, 133, 42.25),
    (-42.25, 133, 27.33),
    (27.33, 133, -27.33),
    (27.33, 133, -42.25),
    (42.25, 133, -27.33),
    (-42.25, 133, -27.33),
    (-27.33, 133, -42.25),
    (-27.33, 133, -27.33),
]))
fillet4.Radius = 4

doc.recompute()
